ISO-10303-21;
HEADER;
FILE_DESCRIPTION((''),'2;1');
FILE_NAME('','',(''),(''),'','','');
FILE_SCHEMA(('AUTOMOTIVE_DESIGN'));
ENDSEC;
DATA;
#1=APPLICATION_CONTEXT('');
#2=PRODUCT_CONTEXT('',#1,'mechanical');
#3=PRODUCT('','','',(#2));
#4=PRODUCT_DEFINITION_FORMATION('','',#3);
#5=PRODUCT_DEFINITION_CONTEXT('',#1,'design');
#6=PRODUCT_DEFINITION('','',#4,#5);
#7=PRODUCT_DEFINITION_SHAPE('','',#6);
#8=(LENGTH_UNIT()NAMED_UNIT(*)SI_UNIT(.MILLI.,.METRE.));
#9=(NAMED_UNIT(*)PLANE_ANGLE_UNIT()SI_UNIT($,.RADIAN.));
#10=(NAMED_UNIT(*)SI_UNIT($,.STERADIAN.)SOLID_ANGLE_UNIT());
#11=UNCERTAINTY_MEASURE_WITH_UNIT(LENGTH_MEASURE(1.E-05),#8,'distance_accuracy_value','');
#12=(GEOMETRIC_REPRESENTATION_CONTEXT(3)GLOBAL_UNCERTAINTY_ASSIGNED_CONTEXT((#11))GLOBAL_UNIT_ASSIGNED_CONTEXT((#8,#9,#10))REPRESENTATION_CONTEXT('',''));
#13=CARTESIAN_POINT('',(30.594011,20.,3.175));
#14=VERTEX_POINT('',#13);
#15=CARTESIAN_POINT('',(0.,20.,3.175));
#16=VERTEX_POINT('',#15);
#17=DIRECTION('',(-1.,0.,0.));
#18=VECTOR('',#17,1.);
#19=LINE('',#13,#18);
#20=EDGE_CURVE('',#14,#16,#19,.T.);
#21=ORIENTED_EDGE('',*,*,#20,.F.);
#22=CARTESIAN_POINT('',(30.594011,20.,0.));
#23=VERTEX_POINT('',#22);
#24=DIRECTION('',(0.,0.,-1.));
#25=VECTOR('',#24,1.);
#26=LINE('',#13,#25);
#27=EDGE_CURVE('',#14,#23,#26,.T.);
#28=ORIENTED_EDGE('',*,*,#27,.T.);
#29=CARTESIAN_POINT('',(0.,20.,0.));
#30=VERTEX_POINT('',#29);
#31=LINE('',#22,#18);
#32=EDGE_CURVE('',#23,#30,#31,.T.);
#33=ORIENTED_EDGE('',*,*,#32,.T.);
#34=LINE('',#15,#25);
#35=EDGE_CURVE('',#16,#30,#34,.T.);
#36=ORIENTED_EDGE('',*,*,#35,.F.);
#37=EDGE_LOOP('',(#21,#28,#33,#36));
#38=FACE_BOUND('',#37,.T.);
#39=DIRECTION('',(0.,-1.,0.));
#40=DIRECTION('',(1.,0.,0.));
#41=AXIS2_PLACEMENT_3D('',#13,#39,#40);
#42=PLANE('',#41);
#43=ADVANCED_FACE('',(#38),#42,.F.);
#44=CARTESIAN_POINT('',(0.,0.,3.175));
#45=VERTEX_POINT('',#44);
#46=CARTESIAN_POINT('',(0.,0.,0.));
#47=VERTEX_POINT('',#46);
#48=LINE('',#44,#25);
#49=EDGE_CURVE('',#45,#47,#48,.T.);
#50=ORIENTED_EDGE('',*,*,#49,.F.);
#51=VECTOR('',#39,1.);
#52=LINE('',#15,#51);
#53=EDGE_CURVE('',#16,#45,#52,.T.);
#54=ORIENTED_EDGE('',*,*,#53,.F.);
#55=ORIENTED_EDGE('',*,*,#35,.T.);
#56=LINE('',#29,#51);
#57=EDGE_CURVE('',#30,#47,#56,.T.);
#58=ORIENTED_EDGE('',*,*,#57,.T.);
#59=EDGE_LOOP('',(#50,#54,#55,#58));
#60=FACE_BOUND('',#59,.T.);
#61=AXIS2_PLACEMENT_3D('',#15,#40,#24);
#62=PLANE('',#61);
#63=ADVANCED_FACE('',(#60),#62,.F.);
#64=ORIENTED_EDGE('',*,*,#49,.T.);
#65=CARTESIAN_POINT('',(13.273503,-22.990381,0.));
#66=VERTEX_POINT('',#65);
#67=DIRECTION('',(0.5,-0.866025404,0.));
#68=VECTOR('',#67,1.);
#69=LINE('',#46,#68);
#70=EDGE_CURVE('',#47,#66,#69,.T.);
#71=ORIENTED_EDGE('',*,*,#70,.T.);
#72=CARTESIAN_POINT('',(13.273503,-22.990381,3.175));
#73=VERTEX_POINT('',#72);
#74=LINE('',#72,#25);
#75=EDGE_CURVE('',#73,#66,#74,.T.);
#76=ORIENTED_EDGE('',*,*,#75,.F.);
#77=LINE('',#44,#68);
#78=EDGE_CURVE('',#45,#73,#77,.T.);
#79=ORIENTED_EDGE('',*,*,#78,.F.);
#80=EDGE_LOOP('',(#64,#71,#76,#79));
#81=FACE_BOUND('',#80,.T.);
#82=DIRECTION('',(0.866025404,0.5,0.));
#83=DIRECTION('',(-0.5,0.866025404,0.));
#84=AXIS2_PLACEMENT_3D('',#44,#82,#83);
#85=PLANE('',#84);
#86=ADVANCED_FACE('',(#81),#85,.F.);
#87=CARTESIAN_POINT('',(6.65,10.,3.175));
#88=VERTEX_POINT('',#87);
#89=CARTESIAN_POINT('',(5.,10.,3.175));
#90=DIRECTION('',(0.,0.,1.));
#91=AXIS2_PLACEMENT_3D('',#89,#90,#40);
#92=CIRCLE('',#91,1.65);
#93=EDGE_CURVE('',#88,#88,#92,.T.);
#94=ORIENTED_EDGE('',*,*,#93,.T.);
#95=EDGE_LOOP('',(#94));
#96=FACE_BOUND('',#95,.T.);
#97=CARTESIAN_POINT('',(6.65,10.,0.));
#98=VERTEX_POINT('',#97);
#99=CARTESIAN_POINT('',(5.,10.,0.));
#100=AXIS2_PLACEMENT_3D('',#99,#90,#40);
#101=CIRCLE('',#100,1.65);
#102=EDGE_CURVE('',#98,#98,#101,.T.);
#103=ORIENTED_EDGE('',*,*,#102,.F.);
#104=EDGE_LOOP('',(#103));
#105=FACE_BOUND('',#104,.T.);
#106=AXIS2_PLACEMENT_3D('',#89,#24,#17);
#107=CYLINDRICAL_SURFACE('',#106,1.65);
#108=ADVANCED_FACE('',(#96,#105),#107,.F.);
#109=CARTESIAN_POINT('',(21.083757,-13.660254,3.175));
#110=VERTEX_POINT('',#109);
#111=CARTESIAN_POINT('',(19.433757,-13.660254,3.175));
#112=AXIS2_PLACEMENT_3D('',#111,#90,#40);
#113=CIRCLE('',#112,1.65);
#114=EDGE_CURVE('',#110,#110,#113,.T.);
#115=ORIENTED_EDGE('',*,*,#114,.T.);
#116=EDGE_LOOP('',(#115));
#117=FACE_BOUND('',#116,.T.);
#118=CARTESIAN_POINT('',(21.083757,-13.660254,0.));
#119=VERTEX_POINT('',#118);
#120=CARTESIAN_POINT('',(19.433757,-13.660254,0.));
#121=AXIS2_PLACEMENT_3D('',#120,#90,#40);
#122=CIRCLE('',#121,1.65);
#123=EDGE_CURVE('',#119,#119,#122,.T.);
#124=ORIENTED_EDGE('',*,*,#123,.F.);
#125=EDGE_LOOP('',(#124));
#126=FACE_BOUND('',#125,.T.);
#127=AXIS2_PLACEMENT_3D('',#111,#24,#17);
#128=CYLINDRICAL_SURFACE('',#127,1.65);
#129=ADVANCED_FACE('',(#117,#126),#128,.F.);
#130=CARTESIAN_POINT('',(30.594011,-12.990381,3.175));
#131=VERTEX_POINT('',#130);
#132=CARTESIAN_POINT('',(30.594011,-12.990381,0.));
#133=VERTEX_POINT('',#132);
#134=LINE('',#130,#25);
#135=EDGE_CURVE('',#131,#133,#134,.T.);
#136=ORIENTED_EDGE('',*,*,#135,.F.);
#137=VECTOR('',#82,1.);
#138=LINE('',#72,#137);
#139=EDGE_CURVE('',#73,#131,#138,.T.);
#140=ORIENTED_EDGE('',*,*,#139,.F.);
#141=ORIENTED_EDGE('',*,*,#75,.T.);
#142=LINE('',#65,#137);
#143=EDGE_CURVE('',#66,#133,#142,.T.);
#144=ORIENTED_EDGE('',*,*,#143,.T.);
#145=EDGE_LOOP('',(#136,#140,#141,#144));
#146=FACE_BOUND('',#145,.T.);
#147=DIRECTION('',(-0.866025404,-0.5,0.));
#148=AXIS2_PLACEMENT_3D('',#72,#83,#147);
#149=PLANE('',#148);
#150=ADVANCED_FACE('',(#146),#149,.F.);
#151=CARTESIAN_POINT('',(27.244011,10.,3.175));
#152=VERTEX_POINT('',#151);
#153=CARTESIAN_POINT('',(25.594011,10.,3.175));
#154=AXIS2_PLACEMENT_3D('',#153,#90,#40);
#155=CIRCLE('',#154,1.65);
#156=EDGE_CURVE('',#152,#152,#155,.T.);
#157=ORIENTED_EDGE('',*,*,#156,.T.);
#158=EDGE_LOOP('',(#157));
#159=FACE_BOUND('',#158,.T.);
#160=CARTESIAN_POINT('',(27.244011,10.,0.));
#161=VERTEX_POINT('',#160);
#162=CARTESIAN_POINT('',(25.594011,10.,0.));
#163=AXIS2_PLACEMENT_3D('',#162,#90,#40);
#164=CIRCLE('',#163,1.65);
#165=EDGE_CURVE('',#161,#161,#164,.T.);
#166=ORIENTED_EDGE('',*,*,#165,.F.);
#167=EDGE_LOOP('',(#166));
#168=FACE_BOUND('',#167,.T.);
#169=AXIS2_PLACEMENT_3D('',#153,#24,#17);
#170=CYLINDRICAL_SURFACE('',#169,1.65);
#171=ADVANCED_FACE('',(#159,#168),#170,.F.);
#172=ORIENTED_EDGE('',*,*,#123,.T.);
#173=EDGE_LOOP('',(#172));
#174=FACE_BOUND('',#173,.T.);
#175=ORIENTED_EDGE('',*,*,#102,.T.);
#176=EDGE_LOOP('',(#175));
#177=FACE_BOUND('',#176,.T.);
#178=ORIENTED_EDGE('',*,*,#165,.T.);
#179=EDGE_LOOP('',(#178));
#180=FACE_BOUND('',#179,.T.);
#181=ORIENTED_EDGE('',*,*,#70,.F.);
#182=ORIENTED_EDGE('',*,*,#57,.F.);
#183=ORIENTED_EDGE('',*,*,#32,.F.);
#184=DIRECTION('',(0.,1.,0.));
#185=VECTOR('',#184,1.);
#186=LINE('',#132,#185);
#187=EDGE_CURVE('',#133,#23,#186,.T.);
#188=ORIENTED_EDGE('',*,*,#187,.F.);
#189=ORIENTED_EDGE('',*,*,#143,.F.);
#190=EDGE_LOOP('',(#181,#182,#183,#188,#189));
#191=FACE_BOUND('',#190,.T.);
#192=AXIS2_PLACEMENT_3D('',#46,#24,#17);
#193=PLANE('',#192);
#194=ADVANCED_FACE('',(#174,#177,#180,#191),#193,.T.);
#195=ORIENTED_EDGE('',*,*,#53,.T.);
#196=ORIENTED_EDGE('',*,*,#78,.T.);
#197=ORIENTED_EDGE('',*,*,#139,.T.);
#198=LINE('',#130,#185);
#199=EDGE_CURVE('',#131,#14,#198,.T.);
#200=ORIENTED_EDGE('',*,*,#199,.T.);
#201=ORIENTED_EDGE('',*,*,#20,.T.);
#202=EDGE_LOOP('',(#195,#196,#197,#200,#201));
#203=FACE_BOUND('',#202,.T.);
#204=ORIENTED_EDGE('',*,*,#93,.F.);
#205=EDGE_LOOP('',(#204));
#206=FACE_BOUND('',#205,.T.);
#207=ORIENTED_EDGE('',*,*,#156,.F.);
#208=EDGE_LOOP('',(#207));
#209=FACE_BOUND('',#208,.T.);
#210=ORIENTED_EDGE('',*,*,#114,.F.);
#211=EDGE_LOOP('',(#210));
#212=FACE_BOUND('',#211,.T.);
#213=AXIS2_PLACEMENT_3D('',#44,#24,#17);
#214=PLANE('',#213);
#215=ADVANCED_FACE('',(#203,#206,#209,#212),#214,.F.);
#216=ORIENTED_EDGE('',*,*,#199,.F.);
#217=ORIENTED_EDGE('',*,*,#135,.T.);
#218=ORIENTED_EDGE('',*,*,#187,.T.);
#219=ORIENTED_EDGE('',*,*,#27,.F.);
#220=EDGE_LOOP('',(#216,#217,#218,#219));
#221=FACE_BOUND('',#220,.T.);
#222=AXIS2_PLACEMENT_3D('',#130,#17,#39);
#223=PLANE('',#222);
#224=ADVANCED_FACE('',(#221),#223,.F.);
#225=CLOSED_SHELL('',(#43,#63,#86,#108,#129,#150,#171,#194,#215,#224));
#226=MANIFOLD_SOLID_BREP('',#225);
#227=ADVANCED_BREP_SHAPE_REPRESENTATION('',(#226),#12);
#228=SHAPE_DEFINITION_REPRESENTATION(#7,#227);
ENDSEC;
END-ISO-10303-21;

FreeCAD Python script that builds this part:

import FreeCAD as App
import Part
import Sketcher

V = App.Vector
Q = App.Units.Quantity


def add_polygon(sketch, points):
    """Adds a closed chain of lines whose ends are joined by coincident constraints."""
    first, n = sketch.GeometryCount, len(points)
    for a, b in zip(points, points[1:] + points[:1]):
        sketch.addGeometry(Part.LineSegment(App.Vector(*a, 0), App.Vector(*b, 0)), False)
    for i in range(n):
        sketch.addConstraint(Sketcher.Constraint("Coincident", first + i, 2, first + (i + 1) % n, 1))

doc = App.newDocument("Part")
body = doc.addObject("PartDesign::Body", "Body")

sketch1 = body.newObject("Sketcher::SketchObject", "Sketch")
sketch1.AttachmentSupport = (doc.getObject("XY_Plane"), [""])
sketch1.MapMode = "FlatFace"
add_polygon(sketch1, [(0, 0), (13.273503, -22.990381), (30.594011, -12.990381), (30.594011, 20), (0, 20)])
sketch1.addGeometry(Part.Circle(V(19.433757, -13.660254, 0), V(0, 0, 1), 1.65), False)
sketch1.addGeometry(Part.Circle(V(5, 10, 0), V(0, 0, 1), 1.65), False)
sketch1.addGeometry(Part.Circle(V(25.594011, 10, 0), V(0, 0, 1), 1.65), False)
sketch1.addConstraint([
    Sketcher.Constraint("Vertical", 2),
    Sketcher.Constraint("Horizontal", 3),
    Sketcher.Constraint("Vertical", 4),
    Sketcher.Constraint("Coincident", 4, 2, -1, 1),
    Sketcher.Constraint("Equal", 5, 6),
    Sketcher.Constraint("Equal", 6, 7),
    Sketcher.Constraint("Perpendicular", 0, 1),
    Sketcher.Constraint("Horizontal", 6, 3, 7, 3),
    Sketcher.Constraint("Diameter", 5, Q("3.3 mm")),
    Sketcher.Constraint("DistanceY", 4, 2, 4, 1, Q("20 mm")),
    Sketcher.Constraint("Angle", 0, Q("-60 deg")),
    Sketcher.Constraint("Distance", 1, Q("20 mm")),
    Sketcher.Constraint("DistanceX", -1, 1, 6, 3, Q("5 mm")),
    Sketcher.Constraint("DistanceY", -1, 1, 6, 3, Q("10 mm")),
    Sketcher.Constraint("DistanceX", 7, 3, 1, 2, Q("5 mm")),
    Sketcher.Constraint("DistanceX", 3, 2, 3, 1, Q("30.594011 mm")),
    Sketcher.Constraint("DistanceX", -1, 1, 5, 3, Q("19.433757 mm")),
    Sketcher.Constraint("DistanceY", 5, 3, -1, 1, Q("13.660254 mm")),
])
pad1 = body.newObject("PartDesign::Pad", "Pad")
pad1.Profile = sketch1
pad1.Length = 3.175

doc.recompute()
